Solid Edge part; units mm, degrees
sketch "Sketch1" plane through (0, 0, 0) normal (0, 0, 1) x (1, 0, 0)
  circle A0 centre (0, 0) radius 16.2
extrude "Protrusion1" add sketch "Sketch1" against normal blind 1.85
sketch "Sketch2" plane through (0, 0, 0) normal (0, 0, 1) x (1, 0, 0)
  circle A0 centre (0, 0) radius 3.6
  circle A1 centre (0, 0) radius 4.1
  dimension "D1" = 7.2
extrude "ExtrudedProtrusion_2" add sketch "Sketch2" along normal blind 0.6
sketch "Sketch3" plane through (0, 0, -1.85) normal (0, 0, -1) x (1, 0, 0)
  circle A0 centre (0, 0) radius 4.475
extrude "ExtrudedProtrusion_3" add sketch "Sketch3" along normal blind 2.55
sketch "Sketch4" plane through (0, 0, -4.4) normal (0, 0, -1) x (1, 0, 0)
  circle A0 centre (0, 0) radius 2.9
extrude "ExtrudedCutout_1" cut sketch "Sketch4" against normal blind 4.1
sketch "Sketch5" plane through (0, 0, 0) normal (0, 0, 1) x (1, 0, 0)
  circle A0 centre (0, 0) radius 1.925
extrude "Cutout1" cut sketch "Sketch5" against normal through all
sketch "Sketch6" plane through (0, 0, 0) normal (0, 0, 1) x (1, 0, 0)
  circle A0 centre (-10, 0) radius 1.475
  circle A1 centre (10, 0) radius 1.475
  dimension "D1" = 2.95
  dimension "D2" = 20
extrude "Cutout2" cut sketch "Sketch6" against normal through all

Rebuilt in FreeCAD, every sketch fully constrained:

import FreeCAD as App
import Part
import Sketcher
from FreeCAD import Vector
Q = App.Units.Quantity

doc = App.newDocument("Part")
body = doc.addObject("PartDesign::Body", "Body")

sketch1 = body.newObject("Sketcher::SketchObject", "Sketch")
sketch1.AttachmentSupport = (doc.getObject("XY_Plane"), [""])
sketch1.MapMode = "FlatFace"
sketch1.addGeometry(Part.Circle(Vector(0, 0, 0), Vector(0, 0, 1), 16), False)
sketch1.addConstraint(Sketcher.Constraint("Coincident", 0, 3, -1, 1))
sketch1.addConstraint(Sketcher.Constraint("Diameter", 0, Q("32.4 mm")))
pad1 = body.newObject("PartDesign::Pad", "Pad")
pad1.Profile = sketch1
pad1.Length = 1.85
pad1.Reversed = True

sketch2 = body.newObject("Sketcher::SketchObject", "Sketch001")
sketch2.AttachmentSupport = (doc.getObject("XY_Plane"), [""])
sketch2.MapMode = "FlatFace"
sketch2.addGeometry(Part.Circle(Vector(0, 0, 0), Vector(0, 0, 1), 4.1), False)
sketch2.addGeometry(Part.Circle(Vector(0, 0, 0), Vector(0, 0, 1), 3.6), False)
sketch2.addConstraint(Sketcher.Constraint("Coincident", 0, 3, -1, 1))
sketch2.addConstraint(Sketcher.Constraint("Coincident", 1, 3, -1, 1))
sketch2.addConstraint(Sketcher.Constraint("Diameter", 0, Q("8.2 mm")))
sketch2.addConstraint(Sketcher.Constraint("Diameter", 1, Q("7.2 mm")))
pad2 = body.newObject("PartDesign::Pad", "Pad001")
pad2.Profile = sketch2
pad2.Length = 0.6

sketch3 = body.newObject("Sketcher::SketchObject", "Sketch002")
sketch3.AttachmentSupport = (doc.getObject("XY_Plane"), [""])
sketch3.MapMode = "FlatFace"
sketch3.AttachmentOffset = App.Placement(Vector(0, 0, -1.85), App.Rotation())
sketch3.addGeometry(Part.Circle(Vector(0, 0, 0), Vector(0, 0, 1), 4.5), False)
sketch3.addConstraint(Sketcher.Constraint("Coincident", 0, 3, -1, 1))
sketch3.addConstraint(Sketcher.Constraint("Diameter", 0, Q("8.95 mm")))
pad3 = body.newObject("PartDesign::Pad", "Pad002")
pad3.Profile = sketch3
pad3.Length = 2.55
pad3.Reversed = True

sketch4 = body.newObject("Sketcher::SketchObject", "Sketch003")
sketch4.AttachmentSupport = (doc.getObject("XY_Plane"), [""])
sketch4.MapMode = "FlatFace"
sketch4.AttachmentOffset = App.Placement(Vector(0, 0, -4.4), App.Rotation())
sketch4.addGeometry(Part.Circle(Vector(0, 0, 0), Vector(0, 0, 1), 2.9), False)
sketch4.addConstraint(Sketcher.Constraint("Coincident", 0, 3, -1, 1))
sketch4.addConstraint(Sketcher.Constraint("Diameter", 0, Q("5.8 mm")))
pocket1 = body.newObject("PartDesign::Pocket", "Pocket")
pocket1.Profile = sketch4
pocket1.Length = 4.1
pocket1.Reversed = True

sketch5 = body.newObject("Sketcher::SketchObject", "Sketch004")
sketch5.AttachmentSupport = (doc.getObject("XY_Plane"), [""])
sketch5.MapMode = "FlatFace"
sketch5.addGeometry(Part.Circle(Vector(0, 0, 0), Vector(0, 0, 1), 1.9), False)
sketch5.addConstraint(Sketcher.Constraint("Coincident", 0, 3, -1, 1))
sketch5.addConstraint(Sketcher.Constraint("Diameter", 0, Q("3.85 mm")))
pocket2 = body.newObject("PartDesign::Pocket", "Pocket001")
pocket2.Profile = sketch5
pocket2.Type = "ThroughAll"

sketch6 = body.newObject("Sketcher::SketchObject", "Sketch005")
sketch6.AttachmentSupport = (doc.getObject("XY_Plane"), [""])
sketch6.MapMode = "FlatFace"
sketch6.addGeometry(Part.Circle(Vector(-10, 0, 0), Vector(0, 0, 1), 1.5), False)
sketch6.addGeometry(Part.Circle(Vector(10, 0, 0), Vector(0, 0, 1), 1.5), False)
sketch6.addConstraint(Sketcher.Constraint("Equal", 0, 1))
sketch6.addConstraint(Sketcher.Constraint("Symmetric", 0, 3, 1, 3, -1, 1))
sketch6.addConstraint(Sketcher.Constraint("PointOnObject", 0, 3, -1))
sketch6.addConstraint(Sketcher.Constraint("Diameter", 0, Q("2.95 mm")))
sketch6.addConstraint(Sketcher.Constraint("DistanceX", 0, 3, -1, 1, Q("10 mm")))
pocket3 = body.newObject("PartDesign::Pocket", "Pocket002")
pocket3.Profile = sketch6
pocket3.Type = "ThroughAll"

doc.recompute()
